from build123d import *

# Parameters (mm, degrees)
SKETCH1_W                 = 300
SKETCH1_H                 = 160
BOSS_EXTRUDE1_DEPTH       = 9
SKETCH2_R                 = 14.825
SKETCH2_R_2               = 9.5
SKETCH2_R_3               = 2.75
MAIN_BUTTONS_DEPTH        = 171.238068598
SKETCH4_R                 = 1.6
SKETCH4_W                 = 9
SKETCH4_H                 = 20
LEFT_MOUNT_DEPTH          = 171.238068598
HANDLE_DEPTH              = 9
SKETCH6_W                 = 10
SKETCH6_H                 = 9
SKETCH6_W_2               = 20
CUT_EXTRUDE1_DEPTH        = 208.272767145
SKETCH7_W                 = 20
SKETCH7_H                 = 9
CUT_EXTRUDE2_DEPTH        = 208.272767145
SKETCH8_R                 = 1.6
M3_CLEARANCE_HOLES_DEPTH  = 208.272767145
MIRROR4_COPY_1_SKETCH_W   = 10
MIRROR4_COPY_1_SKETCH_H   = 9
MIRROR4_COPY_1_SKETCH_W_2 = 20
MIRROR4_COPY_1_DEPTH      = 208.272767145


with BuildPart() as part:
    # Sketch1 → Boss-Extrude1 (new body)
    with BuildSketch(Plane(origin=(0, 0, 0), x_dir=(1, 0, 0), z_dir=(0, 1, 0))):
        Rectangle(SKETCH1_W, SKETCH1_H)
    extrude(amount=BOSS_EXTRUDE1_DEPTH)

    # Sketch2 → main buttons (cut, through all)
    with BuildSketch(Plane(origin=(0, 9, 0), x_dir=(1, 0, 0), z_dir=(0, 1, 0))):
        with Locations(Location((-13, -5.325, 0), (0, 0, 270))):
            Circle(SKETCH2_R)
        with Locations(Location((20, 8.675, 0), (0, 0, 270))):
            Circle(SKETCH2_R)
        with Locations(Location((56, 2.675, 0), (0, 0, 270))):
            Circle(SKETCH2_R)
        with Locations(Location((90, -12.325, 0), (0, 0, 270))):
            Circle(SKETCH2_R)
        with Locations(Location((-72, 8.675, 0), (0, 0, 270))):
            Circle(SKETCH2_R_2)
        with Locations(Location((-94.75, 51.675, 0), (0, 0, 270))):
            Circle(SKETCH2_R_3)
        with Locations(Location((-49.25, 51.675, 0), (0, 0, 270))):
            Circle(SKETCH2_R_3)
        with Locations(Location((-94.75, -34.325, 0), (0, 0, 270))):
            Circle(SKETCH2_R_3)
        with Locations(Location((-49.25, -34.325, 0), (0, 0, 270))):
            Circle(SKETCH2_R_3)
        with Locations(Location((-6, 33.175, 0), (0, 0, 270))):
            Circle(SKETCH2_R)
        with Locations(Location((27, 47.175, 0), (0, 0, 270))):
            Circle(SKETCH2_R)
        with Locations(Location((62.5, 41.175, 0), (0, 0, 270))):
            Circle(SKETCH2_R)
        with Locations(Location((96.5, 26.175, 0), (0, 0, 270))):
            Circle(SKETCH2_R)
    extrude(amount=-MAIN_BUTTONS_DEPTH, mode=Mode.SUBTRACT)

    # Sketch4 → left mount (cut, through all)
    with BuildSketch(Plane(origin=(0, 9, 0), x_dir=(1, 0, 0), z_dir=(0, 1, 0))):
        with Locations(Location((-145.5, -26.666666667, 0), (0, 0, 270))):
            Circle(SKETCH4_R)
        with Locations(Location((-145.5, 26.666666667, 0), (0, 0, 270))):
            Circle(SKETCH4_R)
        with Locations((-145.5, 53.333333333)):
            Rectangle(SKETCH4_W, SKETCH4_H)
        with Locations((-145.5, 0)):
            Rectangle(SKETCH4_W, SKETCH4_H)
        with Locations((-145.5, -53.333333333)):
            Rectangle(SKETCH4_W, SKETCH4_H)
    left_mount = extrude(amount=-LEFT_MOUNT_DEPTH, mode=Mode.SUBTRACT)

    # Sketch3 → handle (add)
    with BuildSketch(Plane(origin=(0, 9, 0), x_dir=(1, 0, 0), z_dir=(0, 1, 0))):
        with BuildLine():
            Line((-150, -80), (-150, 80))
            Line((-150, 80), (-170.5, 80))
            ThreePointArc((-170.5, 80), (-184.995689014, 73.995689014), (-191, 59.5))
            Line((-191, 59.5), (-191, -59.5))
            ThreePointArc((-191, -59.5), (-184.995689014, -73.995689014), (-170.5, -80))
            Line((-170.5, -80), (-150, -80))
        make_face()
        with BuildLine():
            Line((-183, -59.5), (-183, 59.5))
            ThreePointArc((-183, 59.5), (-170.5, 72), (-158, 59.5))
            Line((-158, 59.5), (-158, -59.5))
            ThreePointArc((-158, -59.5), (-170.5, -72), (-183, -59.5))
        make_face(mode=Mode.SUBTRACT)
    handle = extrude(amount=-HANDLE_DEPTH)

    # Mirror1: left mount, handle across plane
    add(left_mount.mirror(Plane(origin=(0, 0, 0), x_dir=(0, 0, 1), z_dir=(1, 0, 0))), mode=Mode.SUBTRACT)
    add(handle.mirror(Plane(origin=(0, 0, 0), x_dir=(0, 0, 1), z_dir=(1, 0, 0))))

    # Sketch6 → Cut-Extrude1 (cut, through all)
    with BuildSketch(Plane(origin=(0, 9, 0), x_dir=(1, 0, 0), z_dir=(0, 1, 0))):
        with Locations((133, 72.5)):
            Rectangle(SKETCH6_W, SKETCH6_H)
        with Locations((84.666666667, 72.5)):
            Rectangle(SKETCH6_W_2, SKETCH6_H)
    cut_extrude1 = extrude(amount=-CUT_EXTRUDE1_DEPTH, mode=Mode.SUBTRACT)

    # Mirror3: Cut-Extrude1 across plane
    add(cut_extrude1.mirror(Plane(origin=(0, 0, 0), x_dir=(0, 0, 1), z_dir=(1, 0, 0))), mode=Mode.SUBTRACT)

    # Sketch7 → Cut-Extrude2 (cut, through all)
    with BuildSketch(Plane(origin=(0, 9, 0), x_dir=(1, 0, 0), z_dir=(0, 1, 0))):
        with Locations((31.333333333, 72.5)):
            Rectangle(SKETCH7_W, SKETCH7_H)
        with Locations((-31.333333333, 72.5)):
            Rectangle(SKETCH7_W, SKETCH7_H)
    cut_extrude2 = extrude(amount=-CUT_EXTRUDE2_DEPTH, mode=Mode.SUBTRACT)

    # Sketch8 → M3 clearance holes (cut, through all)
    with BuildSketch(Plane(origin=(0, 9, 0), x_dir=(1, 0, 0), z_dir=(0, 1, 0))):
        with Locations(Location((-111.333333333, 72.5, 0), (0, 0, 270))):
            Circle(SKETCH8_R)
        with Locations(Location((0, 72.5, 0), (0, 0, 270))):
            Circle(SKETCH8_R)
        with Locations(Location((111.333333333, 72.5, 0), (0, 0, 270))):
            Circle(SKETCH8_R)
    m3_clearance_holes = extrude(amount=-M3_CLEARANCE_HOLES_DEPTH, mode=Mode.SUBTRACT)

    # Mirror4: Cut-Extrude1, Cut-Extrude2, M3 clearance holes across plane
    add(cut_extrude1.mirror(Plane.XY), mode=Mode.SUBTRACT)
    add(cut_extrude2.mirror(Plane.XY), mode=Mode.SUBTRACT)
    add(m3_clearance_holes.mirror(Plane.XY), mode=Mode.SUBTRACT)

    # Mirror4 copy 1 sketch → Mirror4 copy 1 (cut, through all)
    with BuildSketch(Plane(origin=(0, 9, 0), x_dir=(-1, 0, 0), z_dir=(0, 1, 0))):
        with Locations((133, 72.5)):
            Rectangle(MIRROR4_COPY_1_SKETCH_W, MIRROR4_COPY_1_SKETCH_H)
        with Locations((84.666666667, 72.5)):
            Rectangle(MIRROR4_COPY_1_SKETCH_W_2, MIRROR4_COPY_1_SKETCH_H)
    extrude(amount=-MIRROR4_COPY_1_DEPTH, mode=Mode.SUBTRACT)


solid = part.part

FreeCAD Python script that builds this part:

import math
import FreeCAD as App
import Part
import Sketcher
Q = App.Units.Quantity

doc = App.newDocument("Part")
params = doc.addObject("Spreadsheet::Sheet", "Params")
for row, (alias, value) in enumerate([
    ("sketch1_width", "300 mm"),
    ("sketch1_height", "160 mm"),
    ("pad1_length", "9 mm"),
    ("sketch2_diameter", "19 mm"),
    ("sketch2_diameter2", "5.5 mm"),
    ("sketch2_diameter3", "29.65 mm"),
    ("sketch3_diameter", "3.2 mm"),
    ("sketch3_width", "9 mm"),
    ("sketch3_height", "20 mm"),
    ("sketch4_radius", "20.5 mm"),
    ("sketch4_radius2", "12.5 mm"),
    ("sketch4_height", "160 mm"),
    ("sketch4_width", "20.5 mm"),
    ("pad2_length", "9 mm"),
    ("sketch5_width", "10 mm"),
    ("sketch5_width2", "20 mm"),
    ("sketch5_height", "9 mm"),
    ("sketch6_width", "20 mm"),
    ("sketch6_height", "9 mm"),
    ("sketch7_diameter", "3.2 mm"),
    ("sketch8_width", "10 mm"),
    ("sketch8_width2", "20 mm"),
    ("sketch8_height", "9 mm"),
], start=1):
    params.set(f"A{row}", alias)
    params.set(f"B{row}", "=" + value)
    params.setAlias(f"B{row}", alias)

body = doc.addObject("PartDesign::Body", "Body")

# Sketch on XZ plane
sketch1 = body.newObject("Sketcher::SketchObject", "Sketch")
sketch1.AttachmentSupport = (doc.getObject("XZ_Plane"), [""])
sketch1.MapMode = "FlatFace"
sketch1.addGeometry([
    Part.LineSegment(App.Vector(-150, -80, 0), App.Vector(-150, 80, 0)),
    Part.LineSegment(App.Vector(-150, 80, 0), App.Vector(150, 80, 0)),
    Part.LineSegment(App.Vector(150, 80, 0), App.Vector(150, -80, 0)),
    Part.LineSegment(App.Vector(150, -80, 0), App.Vector(-150, -80, 0)),
], False)
sketch1.addConstraint([
    Sketcher.Constraint("Coincident", 0, 2, 1, 1),
    Sketcher.Constraint("Coincident", 1, 2, 2, 1),
    Sketcher.Constraint("Coincident", 2, 2, 3, 1),
    Sketcher.Constraint("Coincident", 3, 2, 0, 1),
    Sketcher.Constraint("Vertical", 0),
    Sketcher.Constraint("Horizontal", 1),
    Sketcher.Constraint("Vertical", 2),
    Sketcher.Constraint("Horizontal", 3),
    Sketcher.Constraint("Symmetric", 0, 2, 2, 2, -1, 1),
    Sketcher.Constraint("DistanceX", 1, 1, 1, 2, Q("300 mm")),
    Sketcher.Constraint("DistanceY", 0, 1, 0, 2, Q("160 mm")),
])
sketch1.setExpression("Constraints[9]", "Params.sketch1_width")
sketch1.setExpression("Constraints[10]", "Params.sketch1_height")
pad1 = body.newObject("PartDesign::Pad", "Pad")
pad1.Profile = sketch1
pad1.setExpression("Length", "Params.pad1_length")
pad1.Reversed = True

# Sketch on XZ plane
sketch2 = body.newObject("Sketcher::SketchObject", "Sketch001")
sketch2.AttachmentSupport = (doc.getObject("XZ_Plane"), [""])
sketch2.MapMode = "FlatFace"
sketch2.AttachmentOffset = App.Placement(App.Vector(0, 0, -9), App.Rotation())
sketch2.addGeometry([
    Part.Circle(App.Vector(-13, 5.3, 0), App.Vector(0, 0, 1), 14.8),  # 0
    Part.Circle(App.Vector(20, -8.7, 0), App.Vector(0, 0, 1), 14.8),  # 1
    Part.Circle(App.Vector(56, -2.7, 0), App.Vector(0, 0, 1), 14.8),  # 2
    Part.Circle(App.Vector(90, 12.3, 0), App.Vector(0, 0, 1), 14.8),  # 3
    Part.Circle(App.Vector(-72, -8.7, 0), App.Vector(0, 0, 1), 9.5),  # 4
    Part.Circle(App.Vector(-94.8, -51.7, 0), App.Vector(0, 0, 1), 2.8),  # 5
    Part.Circle(App.Vector(-49.2, -51.7, 0), App.Vector(0, 0, 1), 2.8),  # 6
    Part.Circle(App.Vector(-94.8, 34.3, 0), App.Vector(0, 0, 1), 2.8),  # 7
    Part.Circle(App.Vector(-49.2, 34.3, 0), App.Vector(0, 0, 1), 2.8),  # 8
    Part.Circle(App.Vector(-6, -33.2, 0), App.Vector(0, 0, 1), 14.8),  # 9
    Part.Circle(App.Vector(27, -47.2, 0), App.Vector(0, 0, 1), 14.8),  # 10
    Part.Circle(App.Vector(62.5, -41.2, 0), App.Vector(0, 0, 1), 14.8),  # 11
    Part.Circle(App.Vector(96.5, -26.2, 0), App.Vector(0, 0, 1), 14.8),  # 12
], False)
sketch2.addConstraint([
    Sketcher.Constraint("Equal", 0, 1),
    Sketcher.Constraint("Equal", 1, 2),
    Sketcher.Constraint("Equal", 2, 3),
    Sketcher.Constraint("Equal", 5, 6),
    Sketcher.Constraint("Equal", 6, 7),
    Sketcher.Constraint("Equal", 7, 8),
    Sketcher.Constraint("Equal", 3, 9),
    Sketcher.Constraint("Equal", 9, 10),
    Sketcher.Constraint("Equal", 10, 11),
    Sketcher.Constraint("Equal", 11, 12),
    Sketcher.Constraint("Horizontal", 1, 3, 4, 3),
    Sketcher.Constraint("Horizontal", 5, 3, 6, 3),
    Sketcher.Constraint("Horizontal", 7, 3, 8, 3),
    Sketcher.Constraint("Vertical", 5, 3, 7, 3),
    Sketcher.Constraint("Vertical", 6, 3, 8, 3),
    Sketcher.Constraint("Diameter", 4, Q("19 mm")),
    Sketcher.Constraint("Diameter", 5, Q("5.5 mm")),
    Sketcher.Constraint("Diameter", 0, Q("29.65 mm")),
    Sketcher.Constraint("DistanceX", 0, 3, -1, 1, Q("13 mm")),
    Sketcher.Constraint("DistanceX", -1, 1, 1, 3, Q("20 mm")),
    Sketcher.Constraint("DistanceX", -1, 1, 2, 3, Q("56 mm")),
    Sketcher.Constraint("DistanceX", -1, 1, 3, 3, Q("90 mm")),
    Sketcher.Constraint("DistanceX", 4, 3, -1, 1, Q("72 mm")),
    Sketcher.Constraint("DistanceX", 9, 3, -1, 1, Q("6 mm")),
    Sketcher.Constraint("DistanceX", -1, 1, 10, 3, Q("27 mm")),
    Sketcher.Constraint("DistanceY", 1, 3, 0, 3, Q("14 mm")),
    Sketcher.Constraint("DistanceY", 1, 3, 2, 3, Q("6 mm")),
    Sketcher.Constraint("DistanceY", 2, 3, 3, 3, Q("15 mm")),
    Sketcher.Constraint("DistanceY", 5, 3, 4, 3, Q("43 mm")),
    Sketcher.Constraint("DistanceY", 4, 3, 7, 3, Q("43 mm")),
    Sketcher.Constraint("DistanceY", 10, 3, 9, 3, Q("14 mm")),
    Sketcher.Constraint("DistanceY", 10, 3, 11, 3, Q("6 mm")),
    Sketcher.Constraint("DistanceX", 11, 3, 12, 3, Q("34 mm")),
    Sketcher.Constraint("DistanceY", 11, 3, 12, 3, Q("15 mm")),
    Sketcher.Constraint("DistanceX", -1, 1, 11, 3, Q("62.5 mm")),
    Sketcher.Constraint("DistanceX", 5, 3, 6, 3, Q("45.5 mm")),
    Sketcher.Constraint("DistanceY", 9, 3, 1, 3, Q("24.5 mm")),
    Sketcher.Constraint("DistanceX", 5, 3, -1, 1, Q("94.75 mm")),
    Sketcher.Constraint("DistanceY", -1, 1, 0, 3, Q("5.325 mm")),
])
sketch2.setExpression("Constraints[15]", "Params.sketch2_diameter")
sketch2.setExpression("Constraints[16]", "Params.sketch2_diameter2")
sketch2.setExpression("Constraints[17]", "Params.sketch2_diameter3")
pocket1 = body.newObject("PartDesign::Pocket", "Pocket")
pocket1.Profile = sketch2
pocket1.Type = "ThroughAll"
pocket1.Reversed = True

# Sketch on XZ plane
sketch3 = body.newObject("Sketcher::SketchObject", "Sketch002")
sketch3.AttachmentSupport = (doc.getObject("XZ_Plane"), [""])
sketch3.MapMode = "FlatFace"
sketch3.AttachmentOffset = App.Placement(App.Vector(0, 0, -9), App.Rotation())
sketch3.addGeometry([
    Part.Circle(App.Vector(-145.5, 26.7, 0), App.Vector(0, 0, 1), 1.6),  # 0
    Part.Circle(App.Vector(-145.5, -26.7, 0), App.Vector(0, 0, 1), 1.6),  # 1
    Part.LineSegment(App.Vector(-150, -63.3, 0), App.Vector(-150, -43.3, 0)),  # 2
    Part.LineSegment(App.Vector(-150, -43.3, 0), App.Vector(-141, -43.3, 0)),  # 3
    Part.LineSegment(App.Vector(-141, -43.3, 0), App.Vector(-141, -63.3, 0)),  # 4
    Part.LineSegment(App.Vector(-141, -63.3, 0), App.Vector(-150, -63.3, 0)),  # 5
    Part.LineSegment(App.Vector(-150, -10, 0), App.Vector(-150, 10, 0)),  # 6
    Part.LineSegment(App.Vector(-150, 10, 0), App.Vector(-141, 10, 0)),  # 7
    Part.LineSegment(App.Vector(-141, 10, 0), App.Vector(-141, -10, 0)),  # 8
    Part.LineSegment(App.Vector(-141, -10, 0), App.Vector(-150, -10, 0)),  # 9
    Part.LineSegment(App.Vector(-150, 43.3, 0), App.Vector(-150, 63.3, 0)),  # 10
    Part.LineSegment(App.Vector(-150, 63.3, 0), App.Vector(-141, 63.3, 0)),  # 11
    Part.LineSegment(App.Vector(-141, 63.3, 0), App.Vector(-141, 43.3, 0)),  # 12
    Part.LineSegment(App.Vector(-141, 43.3, 0), App.Vector(-150, 43.3, 0)),  # 13
], False)
sketch3.addConstraint([
    Sketcher.Constraint("Coincident", 2, 2, 3, 1),
    Sketcher.Constraint("Coincident", 3, 2, 4, 1),
    Sketcher.Constraint("Coincident", 4, 2, 5, 1),
    Sketcher.Constraint("Coincident", 5, 2, 2, 1),
    Sketcher.Constraint("Coincident", 6, 2, 7, 1),
    Sketcher.Constraint("Coincident", 7, 2, 8, 1),
    Sketcher.Constraint("Coincident", 8, 2, 9, 1),
    Sketcher.Constraint("Coincident", 9, 2, 6, 1),
    Sketcher.Constraint("Coincident", 10, 2, 11, 1),
    Sketcher.Constraint("Coincident", 11, 2, 12, 1),
    Sketcher.Constraint("Coincident", 12, 2, 13, 1),
    Sketcher.Constraint("Coincident", 13, 2, 10, 1),
    Sketcher.Constraint("Vertical", 2),
    Sketcher.Constraint("Horizontal", 3),
    Sketcher.Constraint("Vertical", 4),
    Sketcher.Constraint("Horizontal", 5),
    Sketcher.Constraint("Vertical", 6),
    Sketcher.Constraint("Horizontal", 7),
    Sketcher.Constraint("Vertical", 8),
    Sketcher.Constraint("Horizontal", 9),
    Sketcher.Constraint("Vertical", 10),
    Sketcher.Constraint("Horizontal", 11),
    Sketcher.Constraint("Vertical", 12),
    Sketcher.Constraint("Horizontal", 13),
    Sketcher.Constraint("Equal", 0, 1),
    Sketcher.Constraint("Symmetric", 0, 3, 1, 3, -1),
    Sketcher.Constraint("Symmetric", 5, 2, 10, 2, -1),
    Sketcher.Constraint("Symmetric", 3, 2, 12, 2, -1),
    Sketcher.Constraint("Vertical", 5, 2, 6, 2),
    Sketcher.Constraint("Vertical", 4, 2, 7, 2),
    Sketcher.Constraint("Equal", 4, 6),
    Sketcher.Constraint("Diameter", 0, Q("3.2 mm")),
    Sketcher.Constraint("DistanceX", 3, 1, 3, 2, Q("9 mm")),
    Sketcher.Constraint("DistanceY", 2, 1, 2, 2, Q("20 mm")),
    Sketcher.Constraint("DistanceX", 2, 2, -1, 1, Q("150 mm")),
    Sketcher.Constraint("DistanceY", -1, 1, 6, 2, Q("10 mm")),
    Sketcher.Constraint("DistanceY", 2, 2, 0, 3, Q("70 mm")),
    Sketcher.Constraint("DistanceX", 0, 3, -1, 1, Q("145.5 mm")),
    Sketcher.Constraint("DistanceY", -1, 1, 0, 3, Q("26.666667 mm")),
])
sketch3.setExpression("Constraints[31]", "Params.sketch3_diameter")
sketch3.setExpression("Constraints[32]", "Params.sketch3_width")
sketch3.setExpression("Constraints[33]", "Params.sketch3_height")
pocket2 = body.newObject("PartDesign::Pocket", "Pocket001")
pocket2.Profile = sketch3
pocket2.Type = "ThroughAll"
pocket2.Reversed = True

# Sketch on XZ plane
sketch4 = body.newObject("Sketcher::SketchObject", "Sketch003")
sketch4.AttachmentSupport = (doc.getObject("XZ_Plane"), [""])
sketch4.MapMode = "FlatFace"
sketch4.AttachmentOffset = App.Placement(App.Vector(0, 0, -9), App.Rotation())
sketch4.addGeometry([
    Part.LineSegment(App.Vector(-150, 80, 0), App.Vector(-150, -80, 0)),  # 0
    Part.LineSegment(App.Vector(-150, -80, 0), App.Vector(-170, -80, 0)),  # 1
    Part.ArcOfCircle(Part.Circle(App.Vector(-170, -59, 0), App.Vector(0, 0, 1), 21), math.radians(-180), math.radians(-90)),  # 2
    Part.LineSegment(App.Vector(-191, -60, 0), App.Vector(-191, 60, 0)),  # 3
    Part.ArcOfCircle(Part.Circle(App.Vector(-170, 59, 0), App.Vector(0, 0, 1), 21), math.radians(90), math.radians(180)),  # 4
    Part.LineSegment(App.Vector(-170, 80, 0), App.Vector(-150, 80, 0)),  # 5
    Part.ArcOfCircle(Part.Circle(App.Vector(-170, 60, 0), App.Vector(0, 0, 1), 12), math.radians(0), math.radians(180)),  # 6
    Part.LineSegment(App.Vector(-183, 60, 0), App.Vector(-183, -60, 0)),  # 7
    Part.ArcOfCircle(Part.Circle(App.Vector(-170, -60, 0), App.Vector(0, 0, 1), 12), math.radians(180), math.radians(360)),  # 8
    Part.LineSegment(App.Vector(-158, -60, 0), App.Vector(-158, 60, 0)),  # 9
], False)
sketch4.addConstraint([
    Sketcher.Constraint("Coincident", 0, 2, 1, 1),
    Sketcher.Constraint("Tangent", 1, 2, 2, 2),
    Sketcher.Constraint("Tangent", 2, 1, 3, 1),
    Sketcher.Constraint("Tangent", 3, 2, 4, 2),
    Sketcher.Constraint("Tangent", 4, 1, 5, 1),
    Sketcher.Constraint("Coincident", 5, 2, 0, 1),
    Sketcher.Constraint("Tangent", 6, 2, 7, 1),
    Sketcher.Constraint("Tangent", 7, 2, 8, 1),
    Sketcher.Constraint("Tangent", 8, 2, 9, 1),
    Sketcher.Constraint("Tangent", 9, 2, 6, 1),
    Sketcher.Constraint("Vertical", 0),
    Sketcher.Constraint("Horizontal", 1),
    Sketcher.Constraint("Vertical", 3),
    Sketcher.Constraint("Horizontal", 5),
    Sketcher.Constraint("Vertical", 7),
    Sketcher.Constraint("Vertical", 9),
    Sketcher.Constraint("Coincident", 6, 3, 4, 3),
    Sketcher.Constraint("Coincident", 8, 3, 2, 3),
    Sketcher.Constraint("Radius", 2, Q("20.5 mm")),
    Sketcher.Constraint("Radius", 6, Q("12.5 mm")),
    Sketcher.Constraint("DistanceY", 0, 2, 0, 1, Q("160 mm")),
    Sketcher.Constraint("DistanceX", 1, 2, 1, 1, Q("20.5 mm")),
    Sketcher.Constraint("DistanceX", 0, 2, -1, 1, Q("150 mm")),
    Sketcher.Constraint("DistanceY", 0, 2, -1, 1, Q("80 mm")),
])
sketch4.setExpression("Constraints[18]", "Params.sketch4_radius")
sketch4.setExpression("Constraints[19]", "Params.sketch4_radius2")
sketch4.setExpression("Constraints[20]", "Params.sketch4_height")
sketch4.setExpression("Constraints[21]", "Params.sketch4_width")
pad2 = body.newObject("PartDesign::Pad", "Pad001")
pad2.Profile = sketch4
pad2.setExpression("Length", "Params.pad2_length")
doc.recompute()

mirrored = body.newObject("PartDesign::Mirrored", "Mirrored")
mirrored.Originals = [pocket2, pad2]
mirrored.MirrorPlane = (doc.getObject("YZ_Plane"), [""])
body.Tip = mirrored

# Sketch on XZ plane
sketch5 = body.newObject("Sketcher::SketchObject", "Sketch004")
sketch5.AttachmentSupport = (doc.getObject("XZ_Plane"), [""])
sketch5.MapMode = "FlatFace"
sketch5.AttachmentOffset = App.Placement(App.Vector(0, 0, -9), App.Rotation())
sketch5.addGeometry([
    Part.LineSegment(App.Vector(128, -77, 0), App.Vector(128, -68, 0)),  # 0
    Part.LineSegment(App.Vector(128, -68, 0), App.Vector(138, -68, 0)),  # 1
    Part.LineSegment(App.Vector(138, -68, 0), App.Vector(138, -77, 0)),  # 2
    Part.LineSegment(App.Vector(138, -77, 0), App.Vector(128, -77, 0)),  # 3
    Part.LineSegment(App.Vector(75, -77, 0), App.Vector(75, -68, 0)),  # 4
    Part.LineSegment(App.Vector(75, -68, 0), App.Vector(95, -68, 0)),  # 5
    Part.LineSegment(App.Vector(95, -68, 0), App.Vector(95, -77, 0)),  # 6
    Part.LineSegment(App.Vector(95, -77, 0), App.Vector(75, -77, 0)),  # 7
], False)
sketch5.addConstraint([
    Sketcher.Constraint("Coincident", 0, 2, 1, 1),
    Sketcher.Constraint("Coincident", 1, 2, 2, 1),
    Sketcher.Constraint("Coincident", 2, 2, 3, 1),
    Sketcher.Constraint("Coincident", 3, 2, 0, 1),
    Sketcher.Constraint("Coincident", 4, 2, 5, 1),
    Sketcher.Constraint("Coincident", 5, 2, 6, 1),
    Sketcher.Constraint("Coincident", 6, 2, 7, 1),
    Sketcher.Constraint("Coincident", 7, 2, 4, 1),
    Sketcher.Constraint("Vertical", 0),
    Sketcher.Constraint("Horizontal", 1),
    Sketcher.Constraint("Vertical", 2),
    Sketcher.Constraint("Horizontal", 3),
    Sketcher.Constraint("Vertical", 4),
    Sketcher.Constraint("Horizontal", 5),
    Sketcher.Constraint("Vertical", 6),
    Sketcher.Constraint("Horizontal", 7),
    Sketcher.Constraint("Horizontal", 1, 2, 4, 2),
    Sketcher.Constraint("Horizontal", 3, 2, 6, 2),
    Sketcher.Constraint("DistanceX", 1, 1, 1, 2, Q("10 mm")),
    Sketcher.Constraint("DistanceX", 5, 1, 5, 2, Q("20 mm")),
    Sketcher.Constraint("DistanceY", 0, 1, 0, 2, Q("9 mm")),
    Sketcher.Constraint("DistanceX", -1, 1, 0, 2, Q("128 mm")),
    Sketcher.Constraint("DistanceY", 0, 2, -1, 1, Q("68 mm")),
    Sketcher.Constraint("DistanceX", -1, 1, 4, 2, Q("74.666667 mm")),
])
sketch5.setExpression("Constraints[18]", "Params.sketch5_width")
sketch5.setExpression("Constraints[19]", "Params.sketch5_width2")
sketch5.setExpression("Constraints[20]", "Params.sketch5_height")
pocket3 = body.newObject("PartDesign::Pocket", "Pocket002")
pocket3.Profile = sketch5
pocket3.Type = "ThroughAll"
pocket3.Reversed = True
doc.recompute()

mirrored2 = body.newObject("PartDesign::Mirrored", "Mirrored001")
mirrored2.Originals = [pocket3]
mirrored2.MirrorPlane = (doc.getObject("YZ_Plane"), [""])
body.Tip = mirrored2

# Sketch on XZ plane
sketch6 = body.newObject("Sketcher::SketchObject", "Sketch005")
sketch6.AttachmentSupport = (doc.getObject("XZ_Plane"), [""])
sketch6.MapMode = "FlatFace"
sketch6.AttachmentOffset = App.Placement(App.Vector(0, 0, -9), App.Rotation())
sketch6.addGeometry([
    Part.LineSegment(App.Vector(21, -77, 0), App.Vector(21, -68, 0)),  # 0
    Part.LineSegment(App.Vector(21, -68, 0), App.Vector(41, -68, 0)),  # 1
    Part.LineSegment(App.Vector(41, -68, 0), App.Vector(41, -77, 0)),  # 2
    Part.LineSegment(App.Vector(41, -77, 0), App.Vector(21, -77, 0)),  # 3
    Part.LineSegment(App.Vector(-41, -77, 0), App.Vector(-41, -68, 0)),  # 4
    Part.LineSegment(App.Vector(-41, -68, 0), App.Vector(-21, -68, 0)),  # 5
    Part.LineSegment(App.Vector(-21, -68, 0), App.Vector(-21, -77, 0)),  # 6
    Part.LineSegment(App.Vector(-21, -77, 0), App.Vector(-41, -77, 0)),  # 7
], False)
sketch6.addConstraint([
    Sketcher.Constraint("Coincident", 0, 2, 1, 1),
    Sketcher.Constraint("Coincident", 1, 2, 2, 1),
    Sketcher.Constraint("Coincident", 2, 2, 3, 1),
    Sketcher.Constraint("Coincident", 3, 2, 0, 1),
    Sketcher.Constraint("Coincident", 4, 2, 5, 1),
    Sketcher.Constraint("Coincident", 5, 2, 6, 1),
    Sketcher.Constraint("Coincident", 6, 2, 7, 1),
    Sketcher.Constraint("Coincident", 7, 2, 4, 1),
    Sketcher.Constraint("Vertical", 0),
    Sketcher.Constraint("Horizontal", 1),
    Sketcher.Constraint("Vertical", 2),
    Sketcher.Constraint("Horizontal", 3),
    Sketcher.Constraint("Vertical", 4),
    Sketcher.Constraint("Horizontal", 5),
    Sketcher.Constraint("Vertical", 6),
    Sketcher.Constraint("Horizontal", 7),
    Sketcher.Constraint("Symmetric", 1, 2, 4, 2, -2),
    Sketcher.Constraint("Symmetric", 3, 2, 6, 2, -2),
    Sketcher.Constraint("DistanceX", 1, 1, 1, 2, Q("20 mm")),
    Sketcher.Constraint("DistanceY", 0, 1, 0, 2, Q("9 mm")),
    Sketcher.Constraint("DistanceY", 0, 2, -1, 1, Q("68 mm")),
    Sketcher.Constraint("DistanceX", -1, 1, 0, 2, Q("21.333333 mm")),
])
sketch6.setExpression("Constraints[18]", "Params.sketch6_width")
sketch6.setExpression("Constraints[19]", "Params.sketch6_height")
pocket4 = body.newObject("PartDesign::Pocket", "Pocket003")
pocket4.Profile = sketch6
pocket4.Type = "ThroughAll"
pocket4.Reversed = True

# Sketch on XZ plane
sketch7 = body.newObject("Sketcher::SketchObject", "Sketch006")
sketch7.AttachmentSupport = (doc.getObject("XZ_Plane"), [""])
sketch7.MapMode = "FlatFace"
sketch7.AttachmentOffset = App.Placement(App.Vector(0, 0, -9), App.Rotation())
sketch7.addGeometry([
    Part.Circle(App.Vector(-111.3, -72.5, 0), App.Vector(0, 0, 1), 1.6),
    Part.Circle(App.Vector(0, -72.5, 0), App.Vector(0, 0, 1), 1.6),
    Part.Circle(App.Vector(111.3, -72.5, 0), App.Vector(0, 0, 1), 1.6),
], False)
sketch7.addConstraint([
    Sketcher.Constraint("Equal", 0, 1),
    Sketcher.Constraint("Equal", 1, 2),
    Sketcher.Constraint("Symmetric", 0, 3, 2, 3, -2),
    Sketcher.Constraint("PointOnObject", 1, 3, -2),
    Sketcher.Constraint("Horizontal", 0, 3, 1, 3),
    Sketcher.Constraint("Diameter", 0, Q("3.2 mm")),
    Sketcher.Constraint("DistanceY", 0, 3, -1, 1, Q("72.5 mm")),
    Sketcher.Constraint("DistanceX", 0, 3, -1, 1, Q("111.333333 mm")),
])
sketch7.setExpression("Constraints[5]", "Params.sketch7_diameter")
pocket5 = body.newObject("PartDesign::Pocket", "Pocket004")
pocket5.Profile = sketch7
pocket5.Type = "ThroughAll"
pocket5.Reversed = True
doc.recompute()

mirrored3 = body.newObject("PartDesign::Mirrored", "Mirrored002")
mirrored3.Originals = [pocket3, pocket4, pocket5]
mirrored3.MirrorPlane = (doc.getObject("XY_Plane"), [""])
body.Tip = mirrored3

# Sketch on XZ plane
sketch8 = body.newObject("Sketcher::SketchObject", "Sketch007")
sketch8.AttachmentSupport = (doc.getObject("XZ_Plane"), [""])
sketch8.MapMode = "FlatFace"
sketch8.AttachmentOffset = App.Placement(App.Vector(0, 0, -9), App.Rotation())
sketch8.addGeometry([
    Part.LineSegment(App.Vector(-128, 77, 0), App.Vector(-128, 68, 0)),  # 0
    Part.LineSegment(App.Vector(-128, 68, 0), App.Vector(-138, 68, 0)),  # 1
    Part.LineSegment(App.Vector(-138, 68, 0), App.Vector(-138, 77, 0)),  # 2
    Part.LineSegment(App.Vector(-138, 77, 0), App.Vector(-128, 77, 0)),  # 3
    Part.LineSegment(App.Vector(-75, 77, 0), App.Vector(-75, 68, 0)),  # 4
    Part.LineSegment(App.Vector(-75, 68, 0), App.Vector(-95, 68, 0)),  # 5
    Part.LineSegment(App.Vector(-95, 68, 0), App.Vector(-95, 77, 0)),  # 6
    Part.LineSegment(App.Vector(-95, 77, 0), App.Vector(-75, 77, 0)),  # 7
], False)
sketch8.addConstraint([
    Sketcher.Constraint("Coincident", 0, 2, 1, 1),
    Sketcher.Constraint("Coincident", 1, 2, 2, 1),
    Sketcher.Constraint("Coincident", 2, 2, 3, 1),
    Sketcher.Constraint("Coincident", 3, 2, 0, 1),
    Sketcher.Constraint("Coincident", 4, 2, 5, 1),
    Sketcher.Constraint("Coincident", 5, 2, 6, 1),
    Sketcher.Constraint("Coincident", 6, 2, 7, 1),
    Sketcher.Constraint("Coincident", 7, 2, 4, 1),
    Sketcher.Constraint("Vertical", 0),
    Sketcher.Constraint("Horizontal", 1),
    Sketcher.Constraint("Vertical", 2),
    Sketcher.Constraint("Horizontal", 3),
    Sketcher.Constraint("Vertical", 4),
    Sketcher.Constraint("Horizontal", 5),
    Sketcher.Constraint("Vertical", 6),
    Sketcher.Constraint("Horizontal", 7),
    Sketcher.Constraint("Horizontal", 1, 2, 4, 2),
    Sketcher.Constraint("Horizontal", 3, 2, 6, 2),
    Sketcher.Constraint("DistanceX", 1, 2, 1, 1, Q("10 mm")),
    Sketcher.Constraint("DistanceX", 5, 2, 5, 1, Q("20 mm")),
    Sketcher.Constraint("DistanceY", 0, 2, 0, 1, Q("9 mm")),
    Sketcher.Constraint("DistanceX", 0, 2, -1, 1, Q("128 mm")),
    Sketcher.Constraint("DistanceY", -1, 1, 0, 2, Q("68 mm")),
    Sketcher.Constraint("DistanceX", 4, 2, -1, 1, Q("74.666667 mm")),
])
sketch8.setExpression("Constraints[18]", "Params.sketch8_width")
sketch8.setExpression("Constraints[19]", "Params.sketch8_width2")
sketch8.setExpression("Constraints[20]", "Params.sketch8_height")
pocket6 = body.newObject("PartDesign::Pocket", "Pocket005")
pocket6.Profile = sketch8
pocket6.Type = "ThroughAll"
pocket6.Reversed = True

doc.recompute()
